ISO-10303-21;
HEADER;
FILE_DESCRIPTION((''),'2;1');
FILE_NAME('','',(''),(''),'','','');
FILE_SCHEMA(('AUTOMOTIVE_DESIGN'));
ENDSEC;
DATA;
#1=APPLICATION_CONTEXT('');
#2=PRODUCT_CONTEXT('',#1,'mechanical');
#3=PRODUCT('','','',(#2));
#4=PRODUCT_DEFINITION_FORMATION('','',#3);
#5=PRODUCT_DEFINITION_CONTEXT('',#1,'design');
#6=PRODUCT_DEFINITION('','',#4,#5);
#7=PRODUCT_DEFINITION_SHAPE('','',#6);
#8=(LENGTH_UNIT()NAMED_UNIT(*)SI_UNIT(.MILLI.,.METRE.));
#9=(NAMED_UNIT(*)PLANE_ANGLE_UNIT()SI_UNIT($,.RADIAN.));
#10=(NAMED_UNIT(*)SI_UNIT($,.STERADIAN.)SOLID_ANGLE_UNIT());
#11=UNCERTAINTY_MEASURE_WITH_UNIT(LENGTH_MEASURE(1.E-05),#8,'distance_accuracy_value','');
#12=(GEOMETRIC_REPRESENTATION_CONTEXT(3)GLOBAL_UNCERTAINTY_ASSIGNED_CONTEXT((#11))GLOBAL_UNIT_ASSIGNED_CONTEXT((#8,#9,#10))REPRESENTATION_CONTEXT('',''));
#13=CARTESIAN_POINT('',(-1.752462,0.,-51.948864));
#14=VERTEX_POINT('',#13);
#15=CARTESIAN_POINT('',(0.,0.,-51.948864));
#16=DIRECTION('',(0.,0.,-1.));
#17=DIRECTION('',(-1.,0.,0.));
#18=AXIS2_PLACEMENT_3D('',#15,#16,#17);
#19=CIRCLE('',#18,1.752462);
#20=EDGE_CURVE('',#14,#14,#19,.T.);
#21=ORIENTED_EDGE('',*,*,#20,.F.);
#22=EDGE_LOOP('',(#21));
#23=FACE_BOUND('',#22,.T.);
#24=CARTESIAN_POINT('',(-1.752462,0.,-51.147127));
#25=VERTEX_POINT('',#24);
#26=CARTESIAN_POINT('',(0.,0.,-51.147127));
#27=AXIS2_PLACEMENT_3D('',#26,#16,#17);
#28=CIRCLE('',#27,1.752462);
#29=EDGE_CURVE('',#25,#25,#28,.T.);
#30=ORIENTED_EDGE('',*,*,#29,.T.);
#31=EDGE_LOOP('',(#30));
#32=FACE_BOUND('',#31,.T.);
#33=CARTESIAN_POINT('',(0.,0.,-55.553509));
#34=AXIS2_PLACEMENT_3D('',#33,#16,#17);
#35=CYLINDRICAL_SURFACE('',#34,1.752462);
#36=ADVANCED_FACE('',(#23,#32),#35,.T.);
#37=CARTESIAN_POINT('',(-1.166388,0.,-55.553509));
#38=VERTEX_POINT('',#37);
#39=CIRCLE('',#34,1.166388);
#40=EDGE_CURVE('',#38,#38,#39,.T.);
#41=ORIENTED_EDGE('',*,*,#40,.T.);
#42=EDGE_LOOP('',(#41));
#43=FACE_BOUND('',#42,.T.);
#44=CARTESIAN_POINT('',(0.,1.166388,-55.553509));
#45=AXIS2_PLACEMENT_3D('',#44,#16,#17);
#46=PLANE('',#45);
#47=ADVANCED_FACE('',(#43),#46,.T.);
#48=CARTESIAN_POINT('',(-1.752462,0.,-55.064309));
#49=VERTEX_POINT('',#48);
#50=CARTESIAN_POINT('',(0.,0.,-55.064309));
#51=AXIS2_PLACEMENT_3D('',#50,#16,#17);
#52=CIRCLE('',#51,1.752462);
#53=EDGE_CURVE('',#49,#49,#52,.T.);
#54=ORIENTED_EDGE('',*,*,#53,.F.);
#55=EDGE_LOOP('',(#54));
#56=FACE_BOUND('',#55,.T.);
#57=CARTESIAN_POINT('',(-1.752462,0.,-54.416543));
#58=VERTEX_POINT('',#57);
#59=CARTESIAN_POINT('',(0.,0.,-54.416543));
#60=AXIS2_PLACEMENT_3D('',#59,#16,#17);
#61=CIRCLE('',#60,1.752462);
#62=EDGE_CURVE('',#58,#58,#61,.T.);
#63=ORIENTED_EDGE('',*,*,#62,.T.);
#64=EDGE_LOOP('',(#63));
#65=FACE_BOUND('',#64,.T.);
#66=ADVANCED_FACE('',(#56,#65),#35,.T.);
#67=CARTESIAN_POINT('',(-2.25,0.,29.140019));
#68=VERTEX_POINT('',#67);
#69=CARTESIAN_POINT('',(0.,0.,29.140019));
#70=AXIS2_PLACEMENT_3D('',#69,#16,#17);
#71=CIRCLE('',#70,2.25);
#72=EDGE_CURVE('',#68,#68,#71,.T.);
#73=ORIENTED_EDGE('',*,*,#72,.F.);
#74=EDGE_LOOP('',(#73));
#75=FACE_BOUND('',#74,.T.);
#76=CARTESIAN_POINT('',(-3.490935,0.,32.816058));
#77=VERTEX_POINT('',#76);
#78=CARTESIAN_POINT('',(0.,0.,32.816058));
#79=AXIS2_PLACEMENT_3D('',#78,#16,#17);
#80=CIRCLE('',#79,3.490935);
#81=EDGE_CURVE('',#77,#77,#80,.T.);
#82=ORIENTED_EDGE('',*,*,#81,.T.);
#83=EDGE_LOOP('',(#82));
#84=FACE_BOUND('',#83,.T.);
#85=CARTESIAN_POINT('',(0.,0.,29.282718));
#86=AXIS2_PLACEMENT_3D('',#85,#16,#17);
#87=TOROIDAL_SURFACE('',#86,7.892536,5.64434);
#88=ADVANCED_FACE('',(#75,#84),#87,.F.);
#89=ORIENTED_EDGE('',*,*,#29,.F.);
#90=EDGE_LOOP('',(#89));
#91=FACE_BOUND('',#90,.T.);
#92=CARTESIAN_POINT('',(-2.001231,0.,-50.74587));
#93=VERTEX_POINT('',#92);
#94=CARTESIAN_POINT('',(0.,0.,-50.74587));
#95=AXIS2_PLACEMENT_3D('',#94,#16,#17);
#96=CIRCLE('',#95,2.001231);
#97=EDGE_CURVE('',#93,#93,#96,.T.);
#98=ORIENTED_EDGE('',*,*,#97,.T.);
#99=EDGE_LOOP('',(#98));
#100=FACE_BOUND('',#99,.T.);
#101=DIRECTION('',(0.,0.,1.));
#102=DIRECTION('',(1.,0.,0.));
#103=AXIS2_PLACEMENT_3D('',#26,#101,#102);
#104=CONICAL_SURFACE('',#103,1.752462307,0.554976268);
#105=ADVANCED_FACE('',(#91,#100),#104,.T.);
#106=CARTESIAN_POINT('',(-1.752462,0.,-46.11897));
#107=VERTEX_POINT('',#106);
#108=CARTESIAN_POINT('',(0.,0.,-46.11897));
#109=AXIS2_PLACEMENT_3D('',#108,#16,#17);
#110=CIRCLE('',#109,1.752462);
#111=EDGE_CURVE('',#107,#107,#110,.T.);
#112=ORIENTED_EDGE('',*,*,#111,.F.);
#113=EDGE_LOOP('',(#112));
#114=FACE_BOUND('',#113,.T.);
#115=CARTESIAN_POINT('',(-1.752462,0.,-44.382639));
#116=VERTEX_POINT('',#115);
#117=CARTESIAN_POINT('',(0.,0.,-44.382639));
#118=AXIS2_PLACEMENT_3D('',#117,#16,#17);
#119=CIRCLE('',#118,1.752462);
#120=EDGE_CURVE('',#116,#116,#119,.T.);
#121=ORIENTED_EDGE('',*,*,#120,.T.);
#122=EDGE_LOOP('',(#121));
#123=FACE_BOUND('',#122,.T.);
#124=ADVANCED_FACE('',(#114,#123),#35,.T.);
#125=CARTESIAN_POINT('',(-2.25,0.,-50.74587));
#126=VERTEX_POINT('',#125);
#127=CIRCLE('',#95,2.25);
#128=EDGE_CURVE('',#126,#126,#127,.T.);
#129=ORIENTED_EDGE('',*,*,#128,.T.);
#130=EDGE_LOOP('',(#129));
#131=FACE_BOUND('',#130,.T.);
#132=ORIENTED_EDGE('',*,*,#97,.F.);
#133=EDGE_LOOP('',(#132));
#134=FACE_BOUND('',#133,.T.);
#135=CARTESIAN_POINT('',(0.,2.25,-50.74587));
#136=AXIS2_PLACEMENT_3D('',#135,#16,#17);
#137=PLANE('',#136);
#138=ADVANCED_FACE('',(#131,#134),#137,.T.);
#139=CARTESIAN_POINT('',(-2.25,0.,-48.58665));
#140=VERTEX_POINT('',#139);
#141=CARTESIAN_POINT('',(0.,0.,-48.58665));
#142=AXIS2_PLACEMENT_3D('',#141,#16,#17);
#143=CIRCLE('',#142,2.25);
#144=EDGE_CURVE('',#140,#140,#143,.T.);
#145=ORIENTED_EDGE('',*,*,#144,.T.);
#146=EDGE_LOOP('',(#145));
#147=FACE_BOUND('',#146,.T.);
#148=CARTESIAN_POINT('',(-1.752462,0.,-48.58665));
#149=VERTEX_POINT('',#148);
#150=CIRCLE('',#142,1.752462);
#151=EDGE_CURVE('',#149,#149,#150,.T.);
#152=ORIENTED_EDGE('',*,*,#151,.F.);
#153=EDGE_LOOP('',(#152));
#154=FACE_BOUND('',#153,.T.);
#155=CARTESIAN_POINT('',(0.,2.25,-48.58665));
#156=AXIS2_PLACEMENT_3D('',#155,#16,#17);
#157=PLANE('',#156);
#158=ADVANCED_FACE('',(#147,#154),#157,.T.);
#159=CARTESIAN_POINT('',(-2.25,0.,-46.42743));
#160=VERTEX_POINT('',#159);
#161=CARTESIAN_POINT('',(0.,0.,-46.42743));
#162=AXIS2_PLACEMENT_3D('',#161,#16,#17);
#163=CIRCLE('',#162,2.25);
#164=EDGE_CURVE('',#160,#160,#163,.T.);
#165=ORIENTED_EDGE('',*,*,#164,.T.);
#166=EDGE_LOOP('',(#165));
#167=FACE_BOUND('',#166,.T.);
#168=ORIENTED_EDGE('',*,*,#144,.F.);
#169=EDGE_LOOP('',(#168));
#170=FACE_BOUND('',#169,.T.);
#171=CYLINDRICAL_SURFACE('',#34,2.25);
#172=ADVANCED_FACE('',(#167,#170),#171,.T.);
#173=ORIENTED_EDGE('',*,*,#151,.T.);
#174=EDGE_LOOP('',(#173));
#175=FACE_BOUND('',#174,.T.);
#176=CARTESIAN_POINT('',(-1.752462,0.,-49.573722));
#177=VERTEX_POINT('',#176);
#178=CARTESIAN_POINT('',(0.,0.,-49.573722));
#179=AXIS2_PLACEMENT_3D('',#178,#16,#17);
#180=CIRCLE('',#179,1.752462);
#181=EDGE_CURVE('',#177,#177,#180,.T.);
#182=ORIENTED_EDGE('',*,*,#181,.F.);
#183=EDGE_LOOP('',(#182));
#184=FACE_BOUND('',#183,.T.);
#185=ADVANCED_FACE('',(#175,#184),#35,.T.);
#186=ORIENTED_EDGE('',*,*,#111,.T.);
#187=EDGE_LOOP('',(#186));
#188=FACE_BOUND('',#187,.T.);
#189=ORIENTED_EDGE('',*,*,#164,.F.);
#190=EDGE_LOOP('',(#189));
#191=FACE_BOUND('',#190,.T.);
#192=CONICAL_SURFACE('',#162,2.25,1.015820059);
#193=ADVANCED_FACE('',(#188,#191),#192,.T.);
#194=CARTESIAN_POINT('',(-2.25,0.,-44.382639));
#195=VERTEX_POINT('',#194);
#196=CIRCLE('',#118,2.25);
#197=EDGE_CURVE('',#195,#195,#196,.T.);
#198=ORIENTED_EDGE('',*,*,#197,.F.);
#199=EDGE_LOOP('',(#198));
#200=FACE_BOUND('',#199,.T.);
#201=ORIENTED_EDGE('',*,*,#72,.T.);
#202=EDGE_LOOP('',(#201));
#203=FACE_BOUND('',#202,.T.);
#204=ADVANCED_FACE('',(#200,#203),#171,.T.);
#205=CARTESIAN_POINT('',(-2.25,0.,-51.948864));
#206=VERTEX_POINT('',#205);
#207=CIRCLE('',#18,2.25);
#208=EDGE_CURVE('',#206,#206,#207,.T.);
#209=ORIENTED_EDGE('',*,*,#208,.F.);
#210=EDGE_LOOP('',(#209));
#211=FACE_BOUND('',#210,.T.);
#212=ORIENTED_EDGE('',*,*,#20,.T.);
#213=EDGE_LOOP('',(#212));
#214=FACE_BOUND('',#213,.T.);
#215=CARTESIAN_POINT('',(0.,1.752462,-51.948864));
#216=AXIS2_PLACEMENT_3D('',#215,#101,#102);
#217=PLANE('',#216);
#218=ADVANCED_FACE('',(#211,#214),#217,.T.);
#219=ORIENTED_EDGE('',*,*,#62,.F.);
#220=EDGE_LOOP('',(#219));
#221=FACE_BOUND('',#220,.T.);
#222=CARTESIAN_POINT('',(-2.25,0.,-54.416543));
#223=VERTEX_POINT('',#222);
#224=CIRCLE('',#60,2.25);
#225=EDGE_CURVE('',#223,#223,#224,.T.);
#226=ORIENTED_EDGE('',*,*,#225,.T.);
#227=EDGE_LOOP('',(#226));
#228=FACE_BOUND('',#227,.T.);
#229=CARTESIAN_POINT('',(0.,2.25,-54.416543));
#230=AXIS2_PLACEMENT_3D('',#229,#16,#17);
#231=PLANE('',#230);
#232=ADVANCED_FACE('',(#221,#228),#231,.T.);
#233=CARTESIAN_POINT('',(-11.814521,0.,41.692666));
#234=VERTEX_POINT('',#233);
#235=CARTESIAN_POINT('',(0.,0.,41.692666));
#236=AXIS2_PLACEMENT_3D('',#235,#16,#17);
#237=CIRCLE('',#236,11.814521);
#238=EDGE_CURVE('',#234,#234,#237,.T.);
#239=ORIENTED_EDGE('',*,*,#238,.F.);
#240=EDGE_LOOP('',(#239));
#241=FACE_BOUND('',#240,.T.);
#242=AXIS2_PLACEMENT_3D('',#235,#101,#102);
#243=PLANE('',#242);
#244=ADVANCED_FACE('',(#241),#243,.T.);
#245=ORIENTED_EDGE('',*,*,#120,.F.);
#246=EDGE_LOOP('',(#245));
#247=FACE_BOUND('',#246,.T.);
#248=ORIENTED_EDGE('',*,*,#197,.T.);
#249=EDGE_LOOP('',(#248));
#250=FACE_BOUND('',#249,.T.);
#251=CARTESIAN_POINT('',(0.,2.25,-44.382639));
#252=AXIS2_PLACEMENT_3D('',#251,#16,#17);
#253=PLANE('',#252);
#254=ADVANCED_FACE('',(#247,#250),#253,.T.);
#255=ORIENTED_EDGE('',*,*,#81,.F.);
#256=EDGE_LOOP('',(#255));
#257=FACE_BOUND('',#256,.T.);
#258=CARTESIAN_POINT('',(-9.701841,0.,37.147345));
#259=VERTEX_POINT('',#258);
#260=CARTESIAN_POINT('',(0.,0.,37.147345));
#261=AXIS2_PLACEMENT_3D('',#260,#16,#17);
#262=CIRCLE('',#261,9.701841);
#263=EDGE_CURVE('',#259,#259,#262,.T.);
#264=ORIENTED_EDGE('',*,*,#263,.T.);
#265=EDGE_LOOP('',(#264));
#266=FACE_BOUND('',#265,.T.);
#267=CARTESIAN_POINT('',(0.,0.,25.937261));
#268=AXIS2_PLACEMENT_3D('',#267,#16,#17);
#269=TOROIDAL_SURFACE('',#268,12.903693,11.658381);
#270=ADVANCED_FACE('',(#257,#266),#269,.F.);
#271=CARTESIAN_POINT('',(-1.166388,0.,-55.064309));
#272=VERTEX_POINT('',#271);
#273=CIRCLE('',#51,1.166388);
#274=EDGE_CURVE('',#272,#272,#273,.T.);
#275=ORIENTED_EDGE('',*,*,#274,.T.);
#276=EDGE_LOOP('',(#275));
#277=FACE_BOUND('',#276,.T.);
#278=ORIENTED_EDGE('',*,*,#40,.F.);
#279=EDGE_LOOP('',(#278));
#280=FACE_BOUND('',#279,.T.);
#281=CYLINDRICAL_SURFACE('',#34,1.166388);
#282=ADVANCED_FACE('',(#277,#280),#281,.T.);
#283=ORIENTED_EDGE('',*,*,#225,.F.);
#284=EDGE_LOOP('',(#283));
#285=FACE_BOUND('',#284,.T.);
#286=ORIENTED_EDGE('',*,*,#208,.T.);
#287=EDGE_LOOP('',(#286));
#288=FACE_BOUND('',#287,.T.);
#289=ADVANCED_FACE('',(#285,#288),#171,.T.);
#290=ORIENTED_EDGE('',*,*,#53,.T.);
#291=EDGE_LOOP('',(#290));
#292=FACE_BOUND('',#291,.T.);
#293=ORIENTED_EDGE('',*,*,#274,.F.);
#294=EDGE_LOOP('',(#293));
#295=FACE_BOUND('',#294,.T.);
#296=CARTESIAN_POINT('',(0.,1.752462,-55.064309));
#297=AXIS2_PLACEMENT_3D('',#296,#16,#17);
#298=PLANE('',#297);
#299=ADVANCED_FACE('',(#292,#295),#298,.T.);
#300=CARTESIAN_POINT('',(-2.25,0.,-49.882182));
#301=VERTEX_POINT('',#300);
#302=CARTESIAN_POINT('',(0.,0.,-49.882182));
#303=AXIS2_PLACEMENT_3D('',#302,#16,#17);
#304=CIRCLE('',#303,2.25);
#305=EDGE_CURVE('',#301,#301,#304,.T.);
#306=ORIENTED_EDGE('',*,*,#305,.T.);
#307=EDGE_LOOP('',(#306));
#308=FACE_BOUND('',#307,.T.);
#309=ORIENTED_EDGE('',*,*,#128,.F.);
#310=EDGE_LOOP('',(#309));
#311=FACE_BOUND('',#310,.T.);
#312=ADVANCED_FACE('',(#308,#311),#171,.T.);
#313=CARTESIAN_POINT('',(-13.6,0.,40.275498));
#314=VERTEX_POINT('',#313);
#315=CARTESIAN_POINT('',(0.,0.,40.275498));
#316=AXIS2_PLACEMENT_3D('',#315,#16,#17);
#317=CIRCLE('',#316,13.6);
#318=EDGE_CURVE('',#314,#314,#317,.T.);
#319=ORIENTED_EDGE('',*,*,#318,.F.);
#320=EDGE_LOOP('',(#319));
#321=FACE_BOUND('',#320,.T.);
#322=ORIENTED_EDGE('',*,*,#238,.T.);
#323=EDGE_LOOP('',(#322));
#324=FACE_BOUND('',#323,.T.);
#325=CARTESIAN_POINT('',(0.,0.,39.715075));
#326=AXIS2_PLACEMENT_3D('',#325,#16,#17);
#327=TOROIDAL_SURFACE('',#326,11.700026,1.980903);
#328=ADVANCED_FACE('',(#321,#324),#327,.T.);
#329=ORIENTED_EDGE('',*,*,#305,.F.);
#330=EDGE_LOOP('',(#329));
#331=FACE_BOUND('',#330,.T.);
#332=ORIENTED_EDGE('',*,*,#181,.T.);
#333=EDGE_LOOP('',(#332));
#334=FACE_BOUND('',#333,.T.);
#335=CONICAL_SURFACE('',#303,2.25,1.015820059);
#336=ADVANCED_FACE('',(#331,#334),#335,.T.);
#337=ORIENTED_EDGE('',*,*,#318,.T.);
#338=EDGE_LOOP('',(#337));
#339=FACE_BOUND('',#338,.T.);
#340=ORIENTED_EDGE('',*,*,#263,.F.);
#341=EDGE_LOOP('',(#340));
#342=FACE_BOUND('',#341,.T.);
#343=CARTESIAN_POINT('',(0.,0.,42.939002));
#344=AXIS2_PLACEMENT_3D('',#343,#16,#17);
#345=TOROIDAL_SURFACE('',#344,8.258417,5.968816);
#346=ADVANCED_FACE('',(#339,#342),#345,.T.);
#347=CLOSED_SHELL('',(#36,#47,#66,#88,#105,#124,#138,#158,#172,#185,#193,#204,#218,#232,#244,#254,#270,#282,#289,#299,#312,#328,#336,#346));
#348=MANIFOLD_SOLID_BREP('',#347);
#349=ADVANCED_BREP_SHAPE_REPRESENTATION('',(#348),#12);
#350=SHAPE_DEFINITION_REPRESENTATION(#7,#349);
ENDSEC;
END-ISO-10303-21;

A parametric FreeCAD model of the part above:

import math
import FreeCAD as App
import Part
import Sketcher

doc = App.newDocument("Part")
params = doc.addObject("Spreadsheet::Sheet", "Params")
for row, (alias, value) in enumerate([
    ("revolution_angle", "360 deg"),
], start=1):
    params.set(f"A{row}", alias)
    params.set(f"B{row}", "=" + value)
    params.setAlias(f"B{row}", alias)

body = doc.addObject("PartDesign::Body", "Body")

# Sketch on YZ plane
sketch1 = doc.addObject("Sketcher::SketchObject", "Sketch")
body.addObject(sketch1)
sketch1.AttachmentSupport = (doc.YZ_Plane, [""])
sketch1.MapMode = "FlatFace"
sketch1.addGeometry([
    Part.LineSegment(App.Vector(0, 41.692666, 0), App.Vector(0, -55.553509, 0)),  # 0
    Part.LineSegment(App.Vector(0, -55.553509, 0), App.Vector(1.166388, -55.553509, 0)),  # 1
    Part.LineSegment(App.Vector(1.166388, -55.553509, 0), App.Vector(1.166388, -55.064309, 0)),  # 2
    Part.LineSegment(App.Vector(1.166388, -55.064309, 0), App.Vector(1.752462, -55.064309, 0)),  # 3
    Part.LineSegment(App.Vector(1.752462, -55.064309, 0), App.Vector(1.752462, -54.416543, 0)),  # 4
    Part.LineSegment(App.Vector(1.752462, -54.416543, 0), App.Vector(2.25, -54.416543, 0)),  # 5
    Part.LineSegment(App.Vector(2.25, -54.416543, 0), App.Vector(2.25, -51.948864, 0)),  # 6
    Part.LineSegment(App.Vector(2.25, -51.948864, 0), App.Vector(1.752462, -51.948864, 0)),  # 7
    Part.LineSegment(App.Vector(1.752462, -51.948864, 0), App.Vector(1.752462, -51.147127, 0)),  # 8
    Part.LineSegment(App.Vector(1.752462, -51.147127, 0), App.Vector(2.001231, -50.74587, 0)),  # 9
    Part.LineSegment(App.Vector(2.001231, -50.74587, 0), App.Vector(2.25, -50.74587, 0)),  # 10
    Part.LineSegment(App.Vector(2.25, -50.74587, 0), App.Vector(2.25, -49.882182, 0)),  # 11
    Part.LineSegment(App.Vector(2.25, -49.882182, 0), App.Vector(1.752462, -49.573722, 0)),  # 12
    Part.LineSegment(App.Vector(1.752462, -49.573722, 0), App.Vector(1.752462, -48.58665, 0)),  # 13
    Part.LineSegment(App.Vector(1.752462, -48.58665, 0), App.Vector(2.25, -48.58665, 0)),  # 14
    Part.LineSegment(App.Vector(2.25, -48.58665, 0), App.Vector(2.25, -46.42743, 0)),  # 15
    Part.LineSegment(App.Vector(2.25, -46.42743, 0), App.Vector(1.752462, -46.11897, 0)),  # 16
    Part.LineSegment(App.Vector(1.752462, -46.11897, 0), App.Vector(1.752462, -44.382639, 0)),  # 17
    Part.LineSegment(App.Vector(1.752462, -44.382639, 0), App.Vector(2.25, -44.382639, 0)),  # 18
    Part.LineSegment(App.Vector(2.25, -44.382639, 0), App.Vector(2.25, 29.140019, 0)),  # 19
    Part.ArcOfCircle(Part.Circle(App.Vector(7.892536, 29.282718, 0), App.Vector(0, 0, 1), 5.64434), math.radians(141.244605), math.radians(181.448698)),  # 20
    Part.ArcOfCircle(Part.Circle(App.Vector(12.903693, 25.937261, 0), App.Vector(0, 0, 1), 11.658381), math.radians(105.940532), math.radians(143.84085)),  # 21
    Part.ArcOfCircle(Part.Circle(App.Vector(8.258417, 42.939002, 0), App.Vector(0, 0, 1), 5.968816), math.radians(-76.005575), math.radians(-26.50249)),  # 22
    Part.ArcOfCircle(Part.Circle(App.Vector(11.700026, 39.715075, 0), App.Vector(0, 0, 1), 1.980903), math.radians(16.434112), math.radians(86.686493)),  # 23
    Part.LineSegment(App.Vector(11.814521, 41.692666, 0), App.Vector(0, 41.692666, 0)),  # 24
], False)
sketch1.addConstraint([
    Sketcher.Constraint("Coincident", 0, 2, 1, 1),
    Sketcher.Constraint("Coincident", 1, 2, 2, 1),
    Sketcher.Constraint("Coincident", 2, 2, 3, 1),
    Sketcher.Constraint("Coincident", 3, 2, 4, 1),
    Sketcher.Constraint("Coincident", 4, 2, 5, 1),
    Sketcher.Constraint("Coincident", 5, 2, 6, 1),
    Sketcher.Constraint("Coincident", 6, 2, 7, 1),
    Sketcher.Constraint("Coincident", 7, 2, 8, 1),
    Sketcher.Constraint("Coincident", 8, 2, 9, 1),
    Sketcher.Constraint("Coincident", 9, 2, 10, 1),
    Sketcher.Constraint("Coincident", 10, 2, 11, 1),
    Sketcher.Constraint("Coincident", 11, 2, 12, 1),
    Sketcher.Constraint("Coincident", 12, 2, 13, 1),
    Sketcher.Constraint("Coincident", 13, 2, 14, 1),
    Sketcher.Constraint("Coincident", 14, 2, 15, 1),
    Sketcher.Constraint("Coincident", 15, 2, 16, 1),
    Sketcher.Constraint("Coincident", 16, 2, 17, 1),
    Sketcher.Constraint("Coincident", 17, 2, 18, 1),
    Sketcher.Constraint("Coincident", 18, 2, 19, 1),
    Sketcher.Constraint("Coincident", 19, 2, 20, 2),
    Sketcher.Constraint("Coincident", 20, 1, 21, 2),
    Sketcher.Constraint("Coincident", 21, 1, 22, 1),
    Sketcher.Constraint("Coincident", 22, 2, 23, 1),
    Sketcher.Constraint("Coincident", 23, 2, 24, 1),
    Sketcher.Constraint("Coincident", 24, 2, 0, 1),
    Sketcher.Constraint("Vertical", 0),
    Sketcher.Constraint("Horizontal", 1),
    Sketcher.Constraint("Vertical", 2),
    Sketcher.Constraint("Horizontal", 3),
    Sketcher.Constraint("Vertical", 4),
    Sketcher.Constraint("Horizontal", 5),
    Sketcher.Constraint("Vertical", 6),
    Sketcher.Constraint("Horizontal", 7),
    Sketcher.Constraint("Vertical", 8),
    Sketcher.Constraint("Horizontal", 10),
    Sketcher.Constraint("Vertical", 11),
    Sketcher.Constraint("Vertical", 13),
    Sketcher.Constraint("Horizontal", 14),
    Sketcher.Constraint("Vertical", 15),
    Sketcher.Constraint("Vertical", 17),
    Sketcher.Constraint("Horizontal", 18),
    Sketcher.Constraint("Vertical", 19),
    Sketcher.Constraint("Horizontal", 24),
    Sketcher.Constraint("PointOnObject", 0, 2, -2),
    Sketcher.Constraint("Perpendicular", 9, 12),
    Sketcher.Constraint("Parallel", 12, 16),
    Sketcher.Constraint("Vertical", 4, 2, 7, 2),
    Sketcher.Constraint("Vertical", 6, 2, 10, 2),
    Sketcher.Constraint("Vertical", 8, 2, 12, 2),
    Sketcher.Constraint("Vertical", 11, 2, 14, 2),
    Sketcher.Constraint("Vertical", 13, 2, 16, 2),
    Sketcher.Constraint("Vertical", 15, 2, 18, 2),
    Sketcher.Constraint("DistanceX", -1, 1, 22, 2, 13.6),
    Sketcher.Constraint("DistanceX", -1, 1, 5, 2, 2.25),
    Sketcher.Constraint("Radius", 20, 5.64434),
    Sketcher.Constraint("Radius", 21, 11.658381),
    Sketcher.Constraint("DistanceY", 2, 1, 2, 2, 0.4892),
    Sketcher.Constraint("Radius", 22, 5.968816),
    Sketcher.Constraint("Radius", 23, 1.980903),
    Sketcher.Constraint("Distance", 12, 0.585398),
    Sketcher.Constraint("DistanceX", 1, 1, 1, 2, 1.166388),
    Sketcher.Constraint("DistanceX", 10, 1, 10, 2, 0.248769),
    Sketcher.Constraint("DistanceX", 24, 2, 24, 1, 11.814521),
    Sketcher.Constraint("DistanceY", 6, 1, 6, 2, 2.46768),
    Sketcher.Constraint("DistanceY", 13, 1, 13, 2, 0.987072),
    Sketcher.Constraint("DistanceY", 15, 1, 15, 2, 2.15922),
    Sketcher.Constraint("DistanceY", 17, 1, 17, 2, 1.736331),
    Sketcher.Constraint("DistanceY", 19, 2, 20, 3, 0.142699),
    Sketcher.Constraint("DistanceX", 20, 1, 20, 3, 4.401601),
    Sketcher.Constraint("DistanceX", 3, 1, 3, 2, 0.586074),
    Sketcher.Constraint("DistanceY", 0, 2, 0, 1, 97.246176),
    Sketcher.Constraint("DistanceY", 4, 1, 4, 2, 0.647766),
    Sketcher.Constraint("DistanceY", 8, 1, 8, 2, 0.801736),
    Sketcher.Constraint("DistanceY", 11, 1, 11, 2, 0.863688),
    Sketcher.Constraint("DistanceY", 19, 1, 19, 2, 73.522657),
    Sketcher.Constraint("DistanceY", -1, 1, 20, 3, 29.282718),
    Sketcher.Constraint("DistanceY", -1, 1, 21, 3, 25.937261),
    Sketcher.Constraint("DistanceX", -1, 1, 21, 1, 9.701841),
    Sketcher.Constraint("DistanceX", 20, 3, 22, 3, 0.365881),
])
revolution = doc.addObject("PartDesign::Revolution", "Revolution")
body.addObject(revolution)
revolution.Profile = sketch1
revolution.ReferenceAxis = (sketch1, ["V_Axis"])
revolution.setExpression("Angle", "Params.revolution_angle")

doc.recompute()
